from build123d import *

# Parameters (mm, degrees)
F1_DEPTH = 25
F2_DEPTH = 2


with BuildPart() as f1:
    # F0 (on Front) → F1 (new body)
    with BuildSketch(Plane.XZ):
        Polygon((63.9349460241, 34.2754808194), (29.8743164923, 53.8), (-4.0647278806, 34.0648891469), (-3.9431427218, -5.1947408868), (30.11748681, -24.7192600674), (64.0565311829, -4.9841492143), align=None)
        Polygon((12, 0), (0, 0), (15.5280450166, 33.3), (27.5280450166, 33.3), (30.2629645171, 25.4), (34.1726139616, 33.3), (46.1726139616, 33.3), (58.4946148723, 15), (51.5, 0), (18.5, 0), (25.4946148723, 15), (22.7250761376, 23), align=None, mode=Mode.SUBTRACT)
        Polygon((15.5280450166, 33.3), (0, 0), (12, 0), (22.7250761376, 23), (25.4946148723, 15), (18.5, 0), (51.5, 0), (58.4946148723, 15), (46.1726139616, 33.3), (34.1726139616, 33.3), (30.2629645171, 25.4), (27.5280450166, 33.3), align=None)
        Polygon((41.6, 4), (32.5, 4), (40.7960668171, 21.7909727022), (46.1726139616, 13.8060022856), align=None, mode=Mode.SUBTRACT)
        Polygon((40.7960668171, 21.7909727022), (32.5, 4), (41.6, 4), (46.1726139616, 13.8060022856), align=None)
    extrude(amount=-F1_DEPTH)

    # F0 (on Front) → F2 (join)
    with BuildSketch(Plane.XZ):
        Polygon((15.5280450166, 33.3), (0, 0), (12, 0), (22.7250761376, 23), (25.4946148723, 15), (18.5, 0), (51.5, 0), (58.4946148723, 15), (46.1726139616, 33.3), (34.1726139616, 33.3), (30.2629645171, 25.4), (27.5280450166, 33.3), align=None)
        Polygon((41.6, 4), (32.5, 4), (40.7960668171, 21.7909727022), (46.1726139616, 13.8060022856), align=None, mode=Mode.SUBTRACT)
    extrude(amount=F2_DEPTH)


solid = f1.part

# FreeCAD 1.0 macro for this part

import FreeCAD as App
import Part
import Sketcher
Q = App.Units.Quantity

doc = App.newDocument("Part")
params = doc.addObject("Spreadsheet::Sheet", "Params")
for row, (alias, value) in enumerate([
    ("pad1_length", "25 mm"),
    ("sketch2_width", "12 mm"),
    ("sketch2_width2", "33 mm"),
    ("sketch2_width3", "9.1 mm"),
    ("pad2_length", "2 mm"),
], start=1):
    params.set(f"A{row}", alias)
    params.set(f"B{row}", "=" + value)
    params.setAlias(f"B{row}", alias)

body = doc.addObject("PartDesign::Body", "Body")

# Sketch on XZ plane
sketch1 = body.newObject("Sketcher::SketchObject", "Sketch")
sketch1.AttachmentSupport = (doc.getObject("XZ_Plane"), [""])
sketch1.MapMode = "FlatFace"
sketch1.addGeometry([
    Part.LineSegment(App.Vector(64, 34, 0), App.Vector(30, 54, 0)),  # 0
    Part.LineSegment(App.Vector(30, 54, 0), App.Vector(-4, 34, 0)),  # 1
    Part.LineSegment(App.Vector(-4, 34, 0), App.Vector(-4, -5, 0)),  # 2
    Part.LineSegment(App.Vector(-4, -5, 0), App.Vector(30, -25, 0)),  # 3
    Part.LineSegment(App.Vector(30, -25, 0), App.Vector(64, -5, 0)),  # 4
    Part.LineSegment(App.Vector(64, -5, 0), App.Vector(64, 34, 0)),  # 5
], False)
sketch1.addConstraint([
    Sketcher.Constraint("Coincident", 0, 2, 1, 1),
    Sketcher.Constraint("Coincident", 1, 2, 2, 1),
    Sketcher.Constraint("Coincident", 2, 2, 3, 1),
    Sketcher.Constraint("Coincident", 3, 2, 4, 1),
    Sketcher.Constraint("Coincident", 4, 2, 5, 1),
    Sketcher.Constraint("Coincident", 5, 2, 0, 1),
    Sketcher.Constraint("Parallel", 0, 3),
    Sketcher.Constraint("Parallel", 1, 4),
    Sketcher.Constraint("Parallel", 2, 5),
    Sketcher.Constraint("Equal", 0, 1),
    Sketcher.Constraint("Equal", 1, 2),
    Sketcher.Constraint("Equal", 2, 3),
    Sketcher.Constraint("DistanceY", -1, 1, 0, 2, Q("53.8 mm")),
    Sketcher.Constraint("Distance", 0, Q("39.259818 mm")),
    Sketcher.Constraint("DistanceY", -1, 1, 1, 2, Q("34.064889 mm")),
    Sketcher.Constraint("DistanceY", 3, 2, -1, 1, Q("24.71926 mm")),
    Sketcher.Constraint("DistanceX", -1, 1, 4, 2, Q("64.056531 mm")),
    Sketcher.Constraint("DistanceX", 2, 2, 0, 2, Q("33.817459 mm")),
])
pad1 = body.newObject("PartDesign::Pad", "Pad")
pad1.Profile = sketch1
pad1.setExpression("Length", "Params.pad1_length")
pad1.Reversed = True

# Sketch on XZ plane
sketch2 = body.newObject("Sketcher::SketchObject", "Sketch001")
sketch2.AttachmentSupport = (doc.getObject("XZ_Plane"), [""])
sketch2.MapMode = "FlatFace"
sketch2.addGeometry([
    Part.LineSegment(App.Vector(16, 33, 0), App.Vector(0, 0, 0)),  # 0
    Part.LineSegment(App.Vector(0, 0, 0), App.Vector(12, 0, 0)),  # 1
    Part.LineSegment(App.Vector(12, 0, 0), App.Vector(23, 23, 0)),  # 2
    Part.LineSegment(App.Vector(23, 23, 0), App.Vector(25, 15, 0)),  # 3
    Part.LineSegment(App.Vector(25, 15, 0), App.Vector(18, 0, 0)),  # 4
    Part.LineSegment(App.Vector(18, 0, 0), App.Vector(52, 0, 0)),  # 5
    Part.LineSegment(App.Vector(52, 0, 0), App.Vector(58, 15, 0)),  # 6
    Part.LineSegment(App.Vector(58, 15, 0), App.Vector(46, 33, 0)),  # 7
    Part.LineSegment(App.Vector(46, 33, 0), App.Vector(34, 33, 0)),  # 8
    Part.LineSegment(App.Vector(34, 33, 0), App.Vector(30, 25, 0)),  # 9
    Part.LineSegment(App.Vector(30, 25, 0), App.Vector(28, 33, 0)),  # 10
    Part.LineSegment(App.Vector(28, 33, 0), App.Vector(16, 33, 0)),  # 11
    Part.LineSegment(App.Vector(46, 14, 0), App.Vector(42, 4, 0)),  # 12
    Part.LineSegment(App.Vector(42, 4, 0), App.Vector(32, 4, 0)),  # 13
    Part.LineSegment(App.Vector(32, 4, 0), App.Vector(41, 22, 0)),  # 14
    Part.LineSegment(App.Vector(41, 22, 0), App.Vector(46, 14, 0)),  # 15
], False)
sketch2.addConstraint([
    Sketcher.Constraint("Coincident", 0, 2, 1, 1),
    Sketcher.Constraint("Coincident", 1, 2, 2, 1),
    Sketcher.Constraint("Coincident", 2, 2, 3, 1),
    Sketcher.Constraint("Coincident", 3, 2, 4, 1),
    Sketcher.Constraint("Coincident", 4, 2, 5, 1),
    Sketcher.Constraint("Coincident", 5, 2, 6, 1),
    Sketcher.Constraint("Coincident", 6, 2, 7, 1),
    Sketcher.Constraint("Coincident", 7, 2, 8, 1),
    Sketcher.Constraint("Coincident", 8, 2, 9, 1),
    Sketcher.Constraint("Coincident", 9, 2, 10, 1),
    Sketcher.Constraint("Coincident", 10, 2, 11, 1),
    Sketcher.Constraint("Coincident", 11, 2, 0, 1),
    Sketcher.Constraint("Coincident", 12, 2, 13, 1),
    Sketcher.Constraint("Coincident", 13, 2, 14, 1),
    Sketcher.Constraint("Coincident", 14, 2, 15, 1),
    Sketcher.Constraint("Coincident", 15, 2, 12, 1),
    Sketcher.Constraint("Horizontal", 1),
    Sketcher.Constraint("Horizontal", 5),
    Sketcher.Constraint("Horizontal", 8),
    Sketcher.Constraint("Horizontal", 11),
    Sketcher.Constraint("Horizontal", 13),
    Sketcher.Constraint("Coincident", 0, 2, -1, 1),
    Sketcher.Constraint("PointOnObject", 4, 2, -1),
    Sketcher.Constraint("Parallel", 0, 2),
    Sketcher.Constraint("Parallel", 2, 4),
    Sketcher.Constraint("Parallel", 4, 6),
    Sketcher.Constraint("Parallel", 3, 10),
    Sketcher.Constraint("Parallel", 6, 12),
    Sketcher.Constraint("Parallel", 12, 14),
    Sketcher.Constraint("Parallel", 7, 15),
    Sketcher.Constraint("Horizontal", 3, 2, 6, 2),
    Sketcher.Constraint("Horizontal", 8, 2, 10, 2),
    Sketcher.Constraint("Vertical", 7, 2, 15, 2),
    Sketcher.Constraint("Equal", 1, 8),
    Sketcher.Constraint("Equal", 8, 11),
    Sketcher.Constraint("DistanceX", 1, 1, 1, 2, Q("12 mm")),
    Sketcher.Constraint("DistanceX", 5, 1, 5, 2, Q("33 mm")),
    Sketcher.Constraint("Angle", 0, Q("-115 deg")),
    Sketcher.Constraint("DistanceX", 13, 2, 13, 1, Q("9.1 mm")),
    Sketcher.Constraint("DistanceY", -1, 1, 2, 2, Q("23 mm")),
    Sketcher.Constraint("DistanceY", -1, 1, 3, 2, Q("15 mm")),
    Sketcher.Constraint("DistanceY", -1, 1, 12, 2, Q("4 mm")),
    Sketcher.Constraint("DistanceX", 4, 2, 13, 2, Q("14 mm")),
    Sketcher.Constraint("DistanceX", -1, 1, 4, 2, Q("18.5 mm")),
    Sketcher.Constraint("DistanceY", -1, 1, 7, 2, Q("33.3 mm")),
    Sketcher.Constraint("DistanceY", -1, 1, 9, 2, Q("25.4 mm")),
    Sketcher.Constraint("DistanceX", 7, 2, 6, 2, Q("12.322001 mm")),
])
sketch2.setExpression("Constraints[35]", "Params.sketch2_width")
sketch2.setExpression("Constraints[36]", "Params.sketch2_width2")
sketch2.setExpression("Constraints[38]", "Params.sketch2_width3")
pad2 = body.newObject("PartDesign::Pad", "Pad001")
pad2.Profile = sketch2
pad2.setExpression("Length", "Params.pad2_length")

doc.recompute()
